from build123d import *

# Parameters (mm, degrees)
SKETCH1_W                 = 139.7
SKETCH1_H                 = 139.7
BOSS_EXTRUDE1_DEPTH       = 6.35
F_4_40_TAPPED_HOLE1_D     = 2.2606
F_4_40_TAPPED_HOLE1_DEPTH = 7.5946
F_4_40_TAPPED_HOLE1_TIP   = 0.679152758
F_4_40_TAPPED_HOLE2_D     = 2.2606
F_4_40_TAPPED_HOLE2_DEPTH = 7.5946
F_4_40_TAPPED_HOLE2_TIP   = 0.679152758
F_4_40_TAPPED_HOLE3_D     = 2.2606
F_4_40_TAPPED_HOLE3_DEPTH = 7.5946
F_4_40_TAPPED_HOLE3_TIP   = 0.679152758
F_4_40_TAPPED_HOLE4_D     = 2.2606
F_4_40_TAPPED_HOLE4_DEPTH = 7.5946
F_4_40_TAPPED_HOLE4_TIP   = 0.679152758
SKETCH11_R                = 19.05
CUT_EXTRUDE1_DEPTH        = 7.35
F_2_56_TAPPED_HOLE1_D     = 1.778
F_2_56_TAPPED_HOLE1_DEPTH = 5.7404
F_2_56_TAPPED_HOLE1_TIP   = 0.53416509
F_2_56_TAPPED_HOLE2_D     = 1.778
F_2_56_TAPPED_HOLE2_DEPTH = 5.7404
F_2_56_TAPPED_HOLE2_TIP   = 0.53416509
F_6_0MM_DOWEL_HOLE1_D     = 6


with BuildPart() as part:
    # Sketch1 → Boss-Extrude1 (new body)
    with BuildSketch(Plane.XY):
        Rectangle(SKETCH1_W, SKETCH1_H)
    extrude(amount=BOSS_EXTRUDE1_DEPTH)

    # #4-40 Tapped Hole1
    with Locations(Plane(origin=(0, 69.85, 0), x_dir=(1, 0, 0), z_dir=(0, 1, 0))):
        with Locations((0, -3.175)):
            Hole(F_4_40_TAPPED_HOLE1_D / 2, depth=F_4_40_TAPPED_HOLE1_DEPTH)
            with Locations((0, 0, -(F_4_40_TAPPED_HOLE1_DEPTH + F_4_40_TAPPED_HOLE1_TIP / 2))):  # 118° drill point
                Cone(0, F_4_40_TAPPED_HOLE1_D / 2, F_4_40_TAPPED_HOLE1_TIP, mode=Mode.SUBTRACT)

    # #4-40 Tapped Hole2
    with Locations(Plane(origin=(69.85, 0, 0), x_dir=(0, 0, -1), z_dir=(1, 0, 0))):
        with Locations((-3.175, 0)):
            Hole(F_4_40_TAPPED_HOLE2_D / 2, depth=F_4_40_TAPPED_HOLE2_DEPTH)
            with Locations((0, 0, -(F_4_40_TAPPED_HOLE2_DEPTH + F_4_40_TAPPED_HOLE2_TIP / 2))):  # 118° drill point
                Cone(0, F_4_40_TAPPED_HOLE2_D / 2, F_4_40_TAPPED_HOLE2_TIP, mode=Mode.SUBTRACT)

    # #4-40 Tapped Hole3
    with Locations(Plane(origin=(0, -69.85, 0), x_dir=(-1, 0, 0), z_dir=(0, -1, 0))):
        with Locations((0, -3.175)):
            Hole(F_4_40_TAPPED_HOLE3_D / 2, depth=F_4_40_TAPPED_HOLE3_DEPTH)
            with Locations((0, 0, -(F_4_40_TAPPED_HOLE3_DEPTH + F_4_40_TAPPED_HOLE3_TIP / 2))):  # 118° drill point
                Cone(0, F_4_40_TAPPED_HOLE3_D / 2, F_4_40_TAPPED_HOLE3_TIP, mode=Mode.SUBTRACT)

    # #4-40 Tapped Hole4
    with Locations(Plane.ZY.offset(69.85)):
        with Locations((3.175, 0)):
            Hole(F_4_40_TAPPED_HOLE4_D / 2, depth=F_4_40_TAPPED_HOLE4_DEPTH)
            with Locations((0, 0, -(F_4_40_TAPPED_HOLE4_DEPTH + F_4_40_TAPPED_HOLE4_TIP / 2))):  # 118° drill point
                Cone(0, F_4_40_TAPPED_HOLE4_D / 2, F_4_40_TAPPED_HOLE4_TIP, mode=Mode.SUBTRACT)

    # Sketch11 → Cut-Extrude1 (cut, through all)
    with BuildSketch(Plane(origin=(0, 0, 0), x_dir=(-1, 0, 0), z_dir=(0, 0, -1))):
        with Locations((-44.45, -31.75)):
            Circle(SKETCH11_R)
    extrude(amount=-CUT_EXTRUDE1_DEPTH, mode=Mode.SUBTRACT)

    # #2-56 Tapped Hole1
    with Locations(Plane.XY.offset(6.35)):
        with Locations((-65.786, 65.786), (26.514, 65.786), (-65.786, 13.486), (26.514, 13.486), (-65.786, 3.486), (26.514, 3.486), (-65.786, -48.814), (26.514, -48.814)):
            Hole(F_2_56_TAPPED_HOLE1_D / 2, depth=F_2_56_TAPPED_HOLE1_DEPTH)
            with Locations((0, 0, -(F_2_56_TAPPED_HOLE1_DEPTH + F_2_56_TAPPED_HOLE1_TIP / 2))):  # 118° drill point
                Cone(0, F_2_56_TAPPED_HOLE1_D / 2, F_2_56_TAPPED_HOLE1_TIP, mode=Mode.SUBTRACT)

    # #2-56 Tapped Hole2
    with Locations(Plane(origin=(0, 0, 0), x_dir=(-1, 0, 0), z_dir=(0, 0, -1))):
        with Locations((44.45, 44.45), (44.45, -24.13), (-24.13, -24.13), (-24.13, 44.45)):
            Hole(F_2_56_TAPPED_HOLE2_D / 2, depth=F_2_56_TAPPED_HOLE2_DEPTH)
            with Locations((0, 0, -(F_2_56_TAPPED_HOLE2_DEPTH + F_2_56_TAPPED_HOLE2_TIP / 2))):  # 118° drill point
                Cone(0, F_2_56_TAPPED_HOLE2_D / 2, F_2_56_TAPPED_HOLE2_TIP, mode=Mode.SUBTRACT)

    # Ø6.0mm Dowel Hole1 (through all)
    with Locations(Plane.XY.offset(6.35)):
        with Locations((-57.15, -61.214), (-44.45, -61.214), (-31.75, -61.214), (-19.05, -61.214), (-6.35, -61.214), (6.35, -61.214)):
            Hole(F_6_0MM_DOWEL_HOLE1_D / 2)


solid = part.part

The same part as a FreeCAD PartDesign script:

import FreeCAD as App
import Part
import Sketcher

V = App.Vector
Q = App.Units.Quantity


def add_polygon(sketch, points):
    """Adds a closed chain of lines whose ends are joined by coincident constraints."""
    first, n = sketch.GeometryCount, len(points)
    for a, b in zip(points, points[1:] + points[:1]):
        sketch.addGeometry(Part.LineSegment(App.Vector(*a, 0), App.Vector(*b, 0)), False)
    for i in range(n):
        sketch.addConstraint(Sketcher.Constraint("Coincident", first + i, 2, first + (i + 1) % n, 1))

doc = App.newDocument("Part")
params = doc.addObject("Spreadsheet::Sheet", "Params")
for row, (alias, value) in enumerate([
    ("sketch1_width", "5.5 in"),
    ("pad1_length", "0.25 in"),
    ("sketch2_diameter", "0.089 in"),
    ("hole_diameter", "0.089 in"),
    ("hole_depth", "0.299 in"),
    ("sketch3_diameter", "0.089 in"),
    ("hole2_diameter", "0.089 in"),
    ("hole2_depth", "0.299 in"),
    ("sketch4_diameter", "0.089 in"),
    ("hole3_diameter", "0.089 in"),
    ("hole3_depth", "0.299 in"),
    ("sketch5_diameter", "0.089 in"),
    ("hole4_diameter", "0.089 in"),
    ("hole4_depth", "0.299 in"),
    ("sketch6_diameter", "1.5 in"),
    ("sketch7_diameter", "0.07 in"),
    ("hole5_diameter", "0.07 in"),
    ("hole5_depth", "0.226 in"),
    ("sketch8_diameter", "0.07 in"),
    ("hole6_diameter", "0.07 in"),
    ("hole6_depth", "0.226 in"),
    ("hole7_diameter", "6 mm"),
], start=1):
    params.set(f"A{row}", alias)
    params.set(f"B{row}", "=" + value)
    params.setAlias(f"B{row}", alias)

body = doc.addObject("PartDesign::Body", "Body")

# Sketch on XY plane
sketch1 = body.newObject("Sketcher::SketchObject", "Sketch")
sketch1.AttachmentSupport = (doc.getObject("XY_Plane"), [""])
sketch1.MapMode = "FlatFace"
add_polygon(sketch1, [(-70, 70), (-70, -70), (70, -70), (70, 70)])  # lines 0-3
sketch1.addConstraint([
    Sketcher.Constraint("Vertical", 0),
    Sketcher.Constraint("Horizontal", 1),
    Sketcher.Constraint("Vertical", 2),
    Sketcher.Constraint("Horizontal", 3),
    Sketcher.Constraint("Symmetric", 0, 2, 2, 2, -1, 1),
    Sketcher.Constraint("Equal", 3, 0),
    Sketcher.Constraint("DistanceX", 1, 1, 1, 2, Q("5.5 in")),
])
sketch1.setExpression("Constraints[10]", "Params.sketch1_width")
pad1 = body.newObject("PartDesign::Pad", "Pad")
pad1.Profile = sketch1
pad1.setExpression("Length", "Params.pad1_length")

# Sketch on XZ plane
sketch2 = body.newObject("Sketcher::SketchObject", "Sketch001")
sketch2.AttachmentSupport = (doc.getObject("XZ_Plane"), [""])
sketch2.MapMode = "FlatFace"
sketch2.AttachmentOffset = App.Placement(V(0, 0, -2.75 * 25.4), App.Rotation())
sketch2.addGeometry(Part.Circle(V(0, 3.2, 0), V(0, 0, 1), 1.1), False)
sketch2.addConstraint([
    Sketcher.Constraint("PointOnObject", 0, 3, -2),
    Sketcher.Constraint("Diameter", 0, Q("0.089 in")),
    Sketcher.Constraint("DistanceY", -1, 1, 0, 3, Q("0.125 in")),
])
sketch2.setExpression("Constraints[1]", "Params.sketch2_diameter")
doc.recompute()
hole = body.newObject("PartDesign::Hole", "Hole")
hole.Profile = sketch2
hole.ThreadType = "None"
hole.setExpression("Diameter", "Params.hole_diameter")
hole.DepthType = "Dimension"
hole.setExpression("Depth", "Params.hole_depth")
hole.DrillPoint = "Angled"
hole.DrillPointAngle = 118
hole.Reversed = True

# Sketch on YZ plane
sketch3 = body.newObject("Sketcher::SketchObject", "Sketch002")
sketch3.AttachmentSupport = (doc.getObject("YZ_Plane"), [""])
sketch3.MapMode = "FlatFace"
sketch3.AttachmentOffset = App.Placement(V(0, 0, 2.75 * 25.4), App.Rotation())
sketch3.addGeometry(Part.Circle(V(0, 3.2, 0), V(0, 0, 1), 1.1), False)
sketch3.addConstraint([
    Sketcher.Constraint("PointOnObject", 0, 3, -2),
    Sketcher.Constraint("Diameter", 0, Q("0.089 in")),
    Sketcher.Constraint("DistanceY", -1, 1, 0, 3, Q("0.125 in")),
])
sketch3.setExpression("Constraints[1]", "Params.sketch3_diameter")
doc.recompute()
hole2 = body.newObject("PartDesign::Hole", "Hole001")
hole2.Profile = sketch3
hole2.ThreadType = "None"
hole2.setExpression("Diameter", "Params.hole2_diameter")
hole2.DepthType = "Dimension"
hole2.setExpression("Depth", "Params.hole2_depth")
hole2.DrillPoint = "Angled"
hole2.DrillPointAngle = 118

# Sketch on XZ plane
sketch4 = body.newObject("Sketcher::SketchObject", "Sketch003")
sketch4.AttachmentSupport = (doc.getObject("XZ_Plane"), [""])
sketch4.MapMode = "FlatFace"
sketch4.AttachmentOffset = App.Placement(V(0, 0, 2.75 * 25.4), App.Rotation())
sketch4.addGeometry(Part.Circle(V(0, 3.2, 0), V(0, 0, 1), 1.1), False)
sketch4.addConstraint([
    Sketcher.Constraint("PointOnObject", 0, 3, -2),
    Sketcher.Constraint("Diameter", 0, Q("0.089 in")),
    Sketcher.Constraint("DistanceY", -1, 1, 0, 3, Q("0.125 in")),
])
sketch4.setExpression("Constraints[1]", "Params.sketch4_diameter")
doc.recompute()
hole3 = body.newObject("PartDesign::Hole", "Hole002")
hole3.Profile = sketch4
hole3.ThreadType = "None"
hole3.setExpression("Diameter", "Params.hole3_diameter")
hole3.DepthType = "Dimension"
hole3.setExpression("Depth", "Params.hole3_depth")
hole3.DrillPoint = "Angled"
hole3.DrillPointAngle = 118

# Sketch on YZ plane
sketch5 = body.newObject("Sketcher::SketchObject", "Sketch004")
sketch5.AttachmentSupport = (doc.getObject("YZ_Plane"), [""])
sketch5.MapMode = "FlatFace"
sketch5.AttachmentOffset = App.Placement(V(0, 0, -2.75 * 25.4), App.Rotation())
sketch5.addGeometry(Part.Circle(V(0, 3.2, 0), V(0, 0, 1), 1.1), False)
sketch5.addConstraint([
    Sketcher.Constraint("PointOnObject", 0, 3, -2),
    Sketcher.Constraint("Diameter", 0, Q("0.089 in")),
    Sketcher.Constraint("DistanceY", -1, 1, 0, 3, Q("0.125 in")),
])
sketch5.setExpression("Constraints[1]", "Params.sketch5_diameter")
doc.recompute()
hole4 = body.newObject("PartDesign::Hole", "Hole003")
hole4.Profile = sketch5
hole4.ThreadType = "None"
hole4.setExpression("Diameter", "Params.hole4_diameter")
hole4.DepthType = "Dimension"
hole4.setExpression("Depth", "Params.hole4_depth")
hole4.DrillPoint = "Angled"
hole4.DrillPointAngle = 118
hole4.Reversed = True

# Sketch on XY plane
sketch6 = body.newObject("Sketcher::SketchObject", "Sketch005")
sketch6.AttachmentSupport = (doc.getObject("XY_Plane"), [""])
sketch6.MapMode = "FlatFace"
sketch6.addGeometry(Part.Circle(V(44, -32, 0), V(0, 0, 1), 19), False)
sketch6.addConstraint([
    Sketcher.Constraint("Diameter", 0, Q("1.5 in")),
    Sketcher.Constraint("DistanceX", -1, 1, 0, 3, Q("1.75 in")),
    Sketcher.Constraint("DistanceY", 0, 3, -1, 1, Q("1.25 in")),
])
sketch6.setExpression("Constraints[0]", "Params.sketch6_diameter")
pocket1 = body.newObject("PartDesign::Pocket", "Pocket")
pocket1.Profile = sketch6
pocket1.Type = "ThroughAll"
pocket1.Reversed = True

# Sketch on XY plane
sketch7 = body.newObject("Sketcher::SketchObject", "Sketch006")
sketch7.AttachmentSupport = (doc.getObject("XY_Plane"), [""])
sketch7.MapMode = "FlatFace"
sketch7.AttachmentOffset = App.Placement(V(0, 0, 0.25 * 25.4), App.Rotation())
sketch7.addGeometry([
    Part.Circle(V(-65.8, 65.8, 0), V(0, 0, 1), 0.9),  # 0
    Part.Circle(V(26.5, 65.8, 0), V(0, 0, 1), 0.9),  # 1
    Part.Circle(V(-65.8, 13.5, 0), V(0, 0, 1), 0.9),  # 2
    Part.Circle(V(26.5, 13.5, 0), V(0, 0, 1), 0.9),  # 3
    Part.Circle(V(-65.8, 3.5, 0), V(0, 0, 1), 0.9),  # 4
    Part.Circle(V(26.5, 3.5, 0), V(0, 0, 1), 0.9),  # 5
    Part.Circle(V(-65.8, -48.8, 0), V(0, 0, 1), 0.9),  # 6
    Part.Circle(V(26.5, -48.8, 0), V(0, 0, 1), 0.9),  # 7
], False)
sketch7.addConstraint([
    Sketcher.Constraint("Equal", 0, 1),
    Sketcher.Constraint("Equal", 1, 2),
    Sketcher.Constraint("Equal", 2, 3),
    Sketcher.Constraint("Equal", 3, 4),
    Sketcher.Constraint("Equal", 4, 5),
    Sketcher.Constraint("Equal", 5, 6),
    Sketcher.Constraint("Equal", 6, 7),
    Sketcher.Constraint("Horizontal", 0, 3, 1, 3),
    Sketcher.Constraint("Horizontal", 2, 3, 3, 3),
    Sketcher.Constraint("Horizontal", 4, 3, 5, 3),
    Sketcher.Constraint("Horizontal", 6, 3, 7, 3),
    Sketcher.Constraint("Vertical", 0, 3, 2, 3),
    Sketcher.Constraint("Vertical", 1, 3, 3, 3),
    Sketcher.Constraint("Vertical", 2, 3, 4, 3),
    Sketcher.Constraint("Vertical", 3, 3, 5, 3),
    Sketcher.Constraint("Vertical", 4, 3, 6, 3),
    Sketcher.Constraint("Vertical", 5, 3, 7, 3),
    Sketcher.Constraint("Diameter", 0, Q("0.07 in")),
    Sketcher.Constraint("DistanceX", 0, 3, -1, 1, Q("2.59 in")),
    Sketcher.Constraint("DistanceY", -1, 1, 0, 3, Q("2.59 in")),
    Sketcher.Constraint("DistanceX", -1, 1, 1, 3, Q("26.514 mm")),
    Sketcher.Constraint("DistanceY", -1, 1, 2, 3, Q("13.486 mm")),
    Sketcher.Constraint("DistanceY", -1, 1, 4, 3, Q("3.486 mm")),
    Sketcher.Constraint("DistanceY", 6, 3, -1, 1, Q("48.814 mm")),
])
sketch7.setExpression("Constraints[17]", "Params.sketch7_diameter")
doc.recompute()
hole5 = body.newObject("PartDesign::Hole", "Hole004")
hole5.Profile = sketch7
hole5.ThreadType = "None"
hole5.setExpression("Diameter", "Params.hole5_diameter")
hole5.DepthType = "Dimension"
hole5.setExpression("Depth", "Params.hole5_depth")
hole5.DrillPoint = "Angled"
hole5.DrillPointAngle = 118

# Sketch on XY plane
sketch8 = body.newObject("Sketcher::SketchObject", "Sketch007")
sketch8.AttachmentSupport = (doc.getObject("XY_Plane"), [""])
sketch8.MapMode = "FlatFace"
sketch8.addGeometry([
    Part.Circle(V(-44.5, 44.5, 0), V(0, 0, 1), 0.9),
    Part.Circle(V(-44.5, -24.1, 0), V(0, 0, 1), 0.9),
    Part.Circle(V(24.1, -24.1, 0), V(0, 0, 1), 0.9),
    Part.Circle(V(24.1, 44.5, 0), V(0, 0, 1), 0.9),
], False)
sketch8.addConstraint([
    Sketcher.Constraint("Equal", 0, 1),
    Sketcher.Constraint("Equal", 1, 2),
    Sketcher.Constraint("Equal", 2, 3),
    Sketcher.Constraint("Horizontal", 1, 3, 2, 3),
    Sketcher.Constraint("Horizontal", 0, 3, 3, 3),
    Sketcher.Constraint("Vertical", 0, 3, 1, 3),
    Sketcher.Constraint("Vertical", 2, 3, 3, 3),
    Sketcher.Constraint("Diameter", 0, Q("0.07 in")),
    Sketcher.Constraint("DistanceY", 1, 3, 0, 3, Q("2.7 in")),
    Sketcher.Constraint("DistanceX", 1, 3, 2, 3, Q("2.7 in")),
    Sketcher.Constraint("DistanceX", 0, 3, -1, 1, Q("1.75 in")),
    Sketcher.Constraint("DistanceY", -1, 1, 0, 3, Q("1.75 in")),
])
sketch8.setExpression("Constraints[7]", "Params.sketch8_diameter")
doc.recompute()
hole6 = body.newObject("PartDesign::Hole", "Hole005")
hole6.Profile = sketch8
hole6.ThreadType = "None"
hole6.setExpression("Diameter", "Params.hole6_diameter")
hole6.DepthType = "Dimension"
hole6.setExpression("Depth", "Params.hole6_depth")
hole6.DrillPoint = "Angled"
hole6.DrillPointAngle = 118
hole6.Reversed = True

# Sketch on XY plane
sketch9 = body.newObject("Sketcher::SketchObject", "Sketch008")
sketch9.AttachmentSupport = (doc.getObject("XY_Plane"), [""])
sketch9.MapMode = "FlatFace"
sketch9.AttachmentOffset = App.Placement(V(0, 0, 0.25 * 25.4), App.Rotation())
sketch9.addGeometry([
    Part.Circle(V(-57.1, -61.2, 0), V(0, 0, 1), 3),  # 0
    Part.Circle(V(-44.5, -61.2, 0), V(0, 0, 1), 3),  # 1
    Part.Circle(V(-31.8, -61.2, 0), V(0, 0, 1), 3),  # 2
    Part.Circle(V(-19.1, -61.2, 0), V(0, 0, 1), 3),  # 3
    Part.Circle(V(-6.3, -61.2, 0), V(0, 0, 1), 3),  # 4
    Part.Circle(V(6.3, -61.2, 0), V(0, 0, 1), 3),  # 5
], False)
sketch9.addConstraint([
    Sketcher.Constraint("Equal", 0, 1),
    Sketcher.Constraint("Equal", 1, 2),
    Sketcher.Constraint("Equal", 2, 3),
    Sketcher.Constraint("Equal", 3, 4),
    Sketcher.Constraint("Equal", 4, 5),
    Sketcher.Constraint("Symmetric", 4, 3, 5, 3, -2),
    Sketcher.Constraint("Horizontal", 0, 3, 1, 3),
    Sketcher.Constraint("Horizontal", 1, 3, 2, 3),
    Sketcher.Constraint("Horizontal", 2, 3, 3, 3),
    Sketcher.Constraint("Horizontal", 3, 3, 4, 3),
    Sketcher.Constraint("DistanceX", 0, 3, 2, 3, Q("1 in")),
    Sketcher.Constraint("DistanceX", 1, 3, 3, 3, Q("1 in")),
    Sketcher.Constraint("DistanceX", 2, 3, 4, 3, Q("1 in")),
    Sketcher.Constraint("DistanceX", 3, 3, 5, 3, Q("1 in")),
    Sketcher.Constraint("DistanceX", 0, 3, 1, 3, Q("0.5 in")),
    Sketcher.Constraint("Diameter", 0, Q("6 mm")),
    Sketcher.Constraint("DistanceY", 0, 3, -1, 1, Q("2.41 in")),
])
doc.recompute()
hole7 = body.newObject("PartDesign::Hole", "Hole006")
hole7.Profile = sketch9
hole7.ThreadType = "None"
hole7.setExpression("Diameter", "Params.hole7_diameter")
hole7.DepthType = "ThroughAll"

doc.recompute()
